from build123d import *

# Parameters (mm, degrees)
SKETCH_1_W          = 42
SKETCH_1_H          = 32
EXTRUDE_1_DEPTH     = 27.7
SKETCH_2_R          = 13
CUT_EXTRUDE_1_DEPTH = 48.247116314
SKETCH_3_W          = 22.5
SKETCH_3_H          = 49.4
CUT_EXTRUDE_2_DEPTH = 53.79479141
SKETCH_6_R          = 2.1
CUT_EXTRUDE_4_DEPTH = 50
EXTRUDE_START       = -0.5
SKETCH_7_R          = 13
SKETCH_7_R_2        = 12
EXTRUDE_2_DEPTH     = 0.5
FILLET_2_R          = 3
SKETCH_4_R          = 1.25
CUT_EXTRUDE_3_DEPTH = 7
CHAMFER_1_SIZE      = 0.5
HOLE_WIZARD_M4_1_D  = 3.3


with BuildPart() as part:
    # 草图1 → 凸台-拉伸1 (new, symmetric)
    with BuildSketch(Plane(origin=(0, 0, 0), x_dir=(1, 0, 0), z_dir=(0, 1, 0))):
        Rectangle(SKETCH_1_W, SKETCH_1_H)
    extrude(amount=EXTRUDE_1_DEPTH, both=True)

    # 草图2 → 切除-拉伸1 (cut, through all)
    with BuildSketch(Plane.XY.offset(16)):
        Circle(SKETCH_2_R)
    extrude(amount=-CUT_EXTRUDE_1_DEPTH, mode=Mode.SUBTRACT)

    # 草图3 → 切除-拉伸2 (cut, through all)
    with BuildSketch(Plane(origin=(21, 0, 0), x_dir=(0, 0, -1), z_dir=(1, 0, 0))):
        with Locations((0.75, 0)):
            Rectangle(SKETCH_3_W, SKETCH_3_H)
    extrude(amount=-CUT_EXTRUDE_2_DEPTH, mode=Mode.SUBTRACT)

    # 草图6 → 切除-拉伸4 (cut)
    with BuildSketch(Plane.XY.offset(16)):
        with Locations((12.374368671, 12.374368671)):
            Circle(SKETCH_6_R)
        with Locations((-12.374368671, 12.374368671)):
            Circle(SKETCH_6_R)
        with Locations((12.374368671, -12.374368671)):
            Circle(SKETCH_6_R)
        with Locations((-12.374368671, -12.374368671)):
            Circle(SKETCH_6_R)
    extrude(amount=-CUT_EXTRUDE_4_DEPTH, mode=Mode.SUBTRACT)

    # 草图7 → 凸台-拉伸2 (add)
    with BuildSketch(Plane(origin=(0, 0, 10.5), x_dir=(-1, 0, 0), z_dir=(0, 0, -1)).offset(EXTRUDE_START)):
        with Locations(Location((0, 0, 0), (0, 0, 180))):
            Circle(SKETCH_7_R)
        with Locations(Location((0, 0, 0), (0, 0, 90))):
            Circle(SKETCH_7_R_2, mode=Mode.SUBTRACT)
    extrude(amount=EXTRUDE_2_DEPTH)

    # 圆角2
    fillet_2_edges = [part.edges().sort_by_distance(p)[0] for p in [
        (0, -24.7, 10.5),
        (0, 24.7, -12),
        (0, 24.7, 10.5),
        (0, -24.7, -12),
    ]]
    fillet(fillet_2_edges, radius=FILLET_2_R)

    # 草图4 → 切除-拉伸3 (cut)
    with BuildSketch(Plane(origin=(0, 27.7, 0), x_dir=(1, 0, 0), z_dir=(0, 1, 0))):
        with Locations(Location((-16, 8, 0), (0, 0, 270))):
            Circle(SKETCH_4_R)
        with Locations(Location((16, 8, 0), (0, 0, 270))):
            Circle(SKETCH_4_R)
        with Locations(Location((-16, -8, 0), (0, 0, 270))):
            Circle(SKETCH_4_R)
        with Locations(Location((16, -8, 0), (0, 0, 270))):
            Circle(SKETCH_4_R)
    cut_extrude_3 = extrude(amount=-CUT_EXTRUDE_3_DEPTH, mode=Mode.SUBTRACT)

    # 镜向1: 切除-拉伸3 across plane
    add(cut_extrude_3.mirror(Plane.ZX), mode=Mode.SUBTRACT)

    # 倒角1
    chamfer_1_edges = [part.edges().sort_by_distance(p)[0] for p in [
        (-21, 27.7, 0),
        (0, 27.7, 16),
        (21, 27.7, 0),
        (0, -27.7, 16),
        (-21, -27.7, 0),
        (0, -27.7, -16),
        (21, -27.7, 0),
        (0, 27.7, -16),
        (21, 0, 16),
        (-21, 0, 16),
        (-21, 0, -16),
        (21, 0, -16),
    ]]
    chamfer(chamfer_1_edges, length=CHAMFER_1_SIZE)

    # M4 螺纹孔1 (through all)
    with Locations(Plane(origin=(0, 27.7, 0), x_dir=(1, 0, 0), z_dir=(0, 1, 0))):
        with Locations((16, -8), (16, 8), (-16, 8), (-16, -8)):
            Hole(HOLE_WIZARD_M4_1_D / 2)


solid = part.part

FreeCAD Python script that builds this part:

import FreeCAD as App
import Part
import Sketcher

V = App.Vector
Q = App.Units.Quantity


def edges_at(feature, points):
    """Names of the edges that pass closest to the given points."""
    edges = feature.Shape.Edges
    near = lambda p: min(range(len(edges)), key=lambda i: edges[i].distToShape(Part.Vertex(*p))[0])
    return sorted({f"Edge{near(p) + 1}" for p in points})


def add_polygon(sketch, points):
    """Adds a closed chain of lines whose ends are joined by coincident constraints."""
    first, n = sketch.GeometryCount, len(points)
    for a, b in zip(points, points[1:] + points[:1]):
        sketch.addGeometry(Part.LineSegment(App.Vector(*a, 0), App.Vector(*b, 0)), False)
    for i in range(n):
        sketch.addConstraint(Sketcher.Constraint("Coincident", first + i, 2, first + (i + 1) % n, 1))

doc = App.newDocument("Part")
body = doc.addObject("PartDesign::Body", "Body")

# Sketch on XZ plane
sketch1 = body.newObject("Sketcher::SketchObject", "Sketch")
sketch1.AttachmentSupport = (doc.getObject("XZ_Plane"), [""])
sketch1.MapMode = "FlatFace"
add_polygon(sketch1, [(-21, -16), (-21, 16), (21, 16), (21, -16)])  # lines 0-3
sketch1.addConstraint(Sketcher.Constraint("Vertical", 0))
sketch1.addConstraint(Sketcher.Constraint("Horizontal", 1))
sketch1.addConstraint(Sketcher.Constraint("Vertical", 2))
sketch1.addConstraint(Sketcher.Constraint("Horizontal", 3))
sketch1.addConstraint(Sketcher.Constraint("Symmetric", 0, 2, 2, 2, -1, 1))
sketch1.addConstraint(Sketcher.Constraint("DistanceX", 1, 1, 1, 2, Q("42 mm")))
sketch1.addConstraint(Sketcher.Constraint("DistanceY", 0, 1, 0, 2, Q("32 mm")))
pad1 = body.newObject("PartDesign::Pad", "Pad")
pad1.Profile = sketch1
pad1.Length = 55.4
pad1.Midplane = True

# Sketch on XY plane
sketch2 = body.newObject("Sketcher::SketchObject", "Sketch001")
sketch2.AttachmentSupport = (doc.getObject("XY_Plane"), [""])
sketch2.MapMode = "FlatFace"
sketch2.AttachmentOffset = App.Placement(V(0, 0, 16), App.Rotation())
sketch2.addGeometry(Part.Circle(V(0, 0, 0), V(0, 0, 1), 13), False)
sketch2.addConstraint(Sketcher.Constraint("Coincident", 0, 3, -1, 1))
sketch2.addConstraint(Sketcher.Constraint("Diameter", 0, Q("26 mm")))
pocket1 = body.newObject("PartDesign::Pocket", "Pocket")
pocket1.Profile = sketch2
pocket1.Type = "ThroughAll"

# Sketch on YZ plane
sketch3 = body.newObject("Sketcher::SketchObject", "Sketch002")
sketch3.AttachmentSupport = (doc.getObject("YZ_Plane"), [""])
sketch3.MapMode = "FlatFace"
sketch3.AttachmentOffset = App.Placement(V(0, 0, 21), App.Rotation())
add_polygon(sketch3, [(24.7, 10.5), (-24.7, 10.5), (-24.7, -12), (24.7, -12)])  # lines 0-3
sketch3.addConstraint(Sketcher.Constraint("Horizontal", 0))
sketch3.addConstraint(Sketcher.Constraint("Vertical", 1))
sketch3.addConstraint(Sketcher.Constraint("Horizontal", 2))
sketch3.addConstraint(Sketcher.Constraint("Vertical", 3))
sketch3.addConstraint(Sketcher.Constraint("DistanceX", 0, 2, 0, 1, Q("49.4 mm")))
sketch3.addConstraint(Sketcher.Constraint("DistanceY", 1, 2, 1, 1, Q("22.5 mm")))
sketch3.addConstraint(Sketcher.Constraint("DistanceY", 1, 2, -1, 1, Q("12 mm")))
sketch3.addConstraint(Sketcher.Constraint("DistanceX", 0, 2, -1, 1, Q("24.7 mm")))
pocket2 = body.newObject("PartDesign::Pocket", "Pocket001")
pocket2.Profile = sketch3
pocket2.Type = "ThroughAll"

# Sketch on XY plane
sketch4 = body.newObject("Sketcher::SketchObject", "Sketch003")
sketch4.AttachmentSupport = (doc.getObject("XY_Plane"), [""])
sketch4.MapMode = "FlatFace"
sketch4.AttachmentOffset = App.Placement(V(0, 0, 16), App.Rotation())
sketch4.addGeometry(Part.Circle(V(12.374369, 12.374369, 0), V(0, 0, 1), 2.1), False)
sketch4.addGeometry(Part.Circle(V(-12.374369, 12.374369, 0), V(0, 0, 1), 2.1), False)
sketch4.addGeometry(Part.Circle(V(12.374369, -12.374369, 0), V(0, 0, 1), 2.1), False)
sketch4.addGeometry(Part.Circle(V(-12.374369, -12.374369, 0), V(0, 0, 1), 2.1), False)
sketch4.addConstraint(Sketcher.Constraint("Equal", 0, 1))
sketch4.addConstraint(Sketcher.Constraint("Equal", 1, 2))
sketch4.addConstraint(Sketcher.Constraint("Equal", 2, 3))
sketch4.addConstraint(Sketcher.Constraint("Symmetric", 1, 3, 2, 3, -1, 1))
sketch4.addConstraint(Sketcher.Constraint("Symmetric", 0, 3, 3, 3, -1, 1))
sketch4.addConstraint(Sketcher.Constraint("Symmetric", 0, 3, 1, 3, -2))
sketch4.addConstraint(Sketcher.Constraint("Diameter", 0, Q("4.2 mm")))
sketch4.addConstraint(Sketcher.Constraint("DistanceX", -1, 1, 0, 3, Q("12.374369 mm")))
sketch4.addConstraint(Sketcher.Constraint("DistanceY", -1, 1, 0, 3, Q("12.374369 mm")))
pocket3 = body.newObject("PartDesign::Pocket", "Pocket002")
pocket3.Profile = sketch4
pocket3.Length = 50

# Sketch on XY plane
sketch5 = body.newObject("Sketcher::SketchObject", "Sketch004")
sketch5.AttachmentSupport = (doc.getObject("XY_Plane"), [""])
sketch5.MapMode = "FlatFace"
sketch5.AttachmentOffset = App.Placement(V(0, 0, 11), App.Rotation())
sketch5.addGeometry(Part.Circle(V(0, 0, 0), V(0, 0, 1), 13), False)
sketch5.addGeometry(Part.Circle(V(0, 0, 0), V(0, 0, 1), 12), False)
sketch5.addConstraint(Sketcher.Constraint("Coincident", 0, 3, -1, 1))
sketch5.addConstraint(Sketcher.Constraint("Coincident", 1, 3, -1, 1))
sketch5.addConstraint(Sketcher.Constraint("Diameter", 0, Q("26 mm")))
sketch5.addConstraint(Sketcher.Constraint("Diameter", 1, Q("24 mm")))
pad2 = body.newObject("PartDesign::Pad", "Pad001")
pad2.Profile = sketch5
pad2.Length = 0.5
pad2.Reversed = True
doc.recompute()

fillet = body.newObject("PartDesign::Fillet", "Fillet")
fillet.Base = (pad2, edges_at(pad2, [
    (0, -24.7, 10.5),
    (0, 24.7, -12),
    (0, 24.7, 10.5),
    (0, -24.7, -12),
]))
fillet.Radius = 3

# Sketch on XZ plane
sketch6 = body.newObject("Sketcher::SketchObject", "Sketch005")
sketch6.AttachmentSupport = (doc.getObject("XZ_Plane"), [""])
sketch6.MapMode = "FlatFace"
sketch6.AttachmentOffset = App.Placement(V(0, 0, -27.7), App.Rotation())
sketch6.addGeometry(Part.Circle(V(-16, -8, 0), V(0, 0, 1), 1.25), False)
sketch6.addGeometry(Part.Circle(V(16, -8, 0), V(0, 0, 1), 1.25), False)
sketch6.addGeometry(Part.Circle(V(-16, 8, 0), V(0, 0, 1), 1.25), False)
sketch6.addGeometry(Part.Circle(V(16, 8, 0), V(0, 0, 1), 1.25), False)
sketch6.addConstraint(Sketcher.Constraint("Equal", 0, 1))
sketch6.addConstraint(Sketcher.Constraint("Equal", 1, 2))
sketch6.addConstraint(Sketcher.Constraint("Equal", 2, 3))
sketch6.addConstraint(Sketcher.Constraint("Symmetric", 1, 3, 2, 3, -1, 1))
sketch6.addConstraint(Sketcher.Constraint("Symmetric", 0, 3, 3, 3, -1, 1))
sketch6.addConstraint(Sketcher.Constraint("Symmetric", 0, 3, 1, 3, -2))
sketch6.addConstraint(Sketcher.Constraint("Diameter", 0, Q("2.5 mm")))
sketch6.addConstraint(Sketcher.Constraint("DistanceX", 0, 3, -1, 1, Q("16 mm")))
sketch6.addConstraint(Sketcher.Constraint("DistanceY", 0, 3, -1, 1, Q("8 mm")))
pocket4 = body.newObject("PartDesign::Pocket", "Pocket003")
pocket4.Profile = sketch6
pocket4.Length = 7
pocket4.Reversed = True
doc.recompute()

mirrored = body.newObject("PartDesign::Mirrored", "Mirrored")
mirrored.Originals = [pocket4]
mirrored.MirrorPlane = (doc.getObject("XZ_Plane"), [""])
body.Tip = mirrored
doc.recompute()

chamfer = body.newObject("PartDesign::Chamfer", "Chamfer")
chamfer.Base = (mirrored, edges_at(mirrored, [
    (-21, 27.7, 0),
    (0, 27.7, 16),
    (21, 27.7, 0),
    (0, -27.7, 16),
    (-21, -27.7, 0),
    (0, -27.7, -16),
    (21, -27.7, 0),
    (0, 27.7, -16),
    (21, 0, 16),
    (-21, 0, 16),
    (-21, 0, -16),
    (21, 0, -16),
]))
chamfer.Size = 0.5

# Sketch on XZ plane
sketch7 = body.newObject("Sketcher::SketchObject", "Sketch006")
sketch7.AttachmentSupport = (doc.getObject("XZ_Plane"), [""])
sketch7.MapMode = "FlatFace"
sketch7.AttachmentOffset = App.Placement(V(0, 0, -27.7), App.Rotation())
sketch7.addGeometry(Part.Circle(V(16, 8, 0), V(0, 0, 1), 1.65), False)
sketch7.addGeometry(Part.Circle(V(16, -8, 0), V(0, 0, 1), 1.65), False)
sketch7.addGeometry(Part.Circle(V(-16, -8, 0), V(0, 0, 1), 1.65), False)
sketch7.addGeometry(Part.Circle(V(-16, 8, 0), V(0, 0, 1), 1.65), False)
sketch7.addConstraint(Sketcher.Constraint("Equal", 0, 1))
sketch7.addConstraint(Sketcher.Constraint("Equal", 1, 2))
sketch7.addConstraint(Sketcher.Constraint("Equal", 2, 3))
sketch7.addConstraint(Sketcher.Constraint("Symmetric", 0, 3, 2, 3, -1, 1))
sketch7.addConstraint(Sketcher.Constraint("Symmetric", 1, 3, 3, 3, -1, 1))
sketch7.addConstraint(Sketcher.Constraint("Symmetric", 1, 3, 2, 3, -2))
sketch7.addConstraint(Sketcher.Constraint("Diameter", 0, Q("3.3 mm")))
sketch7.addConstraint(Sketcher.Constraint("DistanceX", -1, 1, 0, 3, Q("16 mm")))
sketch7.addConstraint(Sketcher.Constraint("DistanceY", -1, 1, 0, 3, Q("8 mm")))
doc.recompute()
hole = body.newObject("PartDesign::Hole", "Hole")
hole.Profile = sketch7
hole.ThreadType = "None"
hole.Diameter = 3.3
hole.DepthType = "ThroughAll"
hole.Reversed = True

doc.recompute()
